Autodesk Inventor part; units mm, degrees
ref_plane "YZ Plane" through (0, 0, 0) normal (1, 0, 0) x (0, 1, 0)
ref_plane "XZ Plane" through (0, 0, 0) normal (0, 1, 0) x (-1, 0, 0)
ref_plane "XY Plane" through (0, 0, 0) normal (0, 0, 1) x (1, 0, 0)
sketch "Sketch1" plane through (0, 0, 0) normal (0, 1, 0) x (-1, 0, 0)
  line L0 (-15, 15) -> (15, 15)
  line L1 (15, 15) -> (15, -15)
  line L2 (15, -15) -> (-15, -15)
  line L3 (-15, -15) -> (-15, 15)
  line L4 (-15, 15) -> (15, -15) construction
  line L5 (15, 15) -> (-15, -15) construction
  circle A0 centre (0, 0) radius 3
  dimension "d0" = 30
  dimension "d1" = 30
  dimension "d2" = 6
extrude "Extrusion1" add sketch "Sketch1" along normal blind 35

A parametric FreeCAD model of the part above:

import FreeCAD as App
import Part
import Sketcher
from FreeCAD import Vector


def add_polygon(sketch, points):
    """Adds a closed chain of lines whose ends are joined by coincident constraints."""
    first, n = sketch.GeometryCount, len(points)
    for a, b in zip(points, points[1:] + points[:1]):
        sketch.addGeometry(Part.LineSegment(App.Vector(*a, 0), App.Vector(*b, 0)), False)
    for i in range(n):
        sketch.addConstraint(Sketcher.Constraint("Coincident", first + i, 2, first + (i + 1) % n, 1))

doc = App.newDocument("Part")
body = doc.addObject("PartDesign::Body", "Body")

# Sketch on XZ plane
sketch1 = body.newObject("Sketcher::SketchObject", "Sketch")
sketch1.AttachmentSupport = (doc.getObject("XZ_Plane"), [""])
sketch1.MapMode = "FlatFace"
add_polygon(sketch1, [(-15, 15), (15, 15), (15, -15), (-15, -15)])  # lines 0-3
sketch1.addGeometry(Part.Circle(Vector(0, 0, 0), Vector(0, 0, 1), 3), False)  # 4
sketch1.addConstraint(Sketcher.Constraint("Horizontal", 0))
sketch1.addConstraint(Sketcher.Constraint("Vertical", 1))
sketch1.addConstraint(Sketcher.Constraint("Horizontal", 2))
sketch1.addConstraint(Sketcher.Constraint("Vertical", 3))
sketch1.addConstraint(Sketcher.Constraint("Coincident", 4, 3, -1, 1))
sketch1.addConstraint(Sketcher.Constraint("Symmetric", 0, 2, 2, 2, -1, 1))
sketch1.addConstraint(Sketcher.Constraint("Equal", 2, 1))
sketch1.addConstraint(Sketcher.Constraint("Diameter", 4, 6.0))
sketch1.addConstraint(Sketcher.Constraint("DistanceX", 0, 1, 0, 2, 30.0))
pad1 = body.newObject("PartDesign::Pad", "Pad")
pad1.Profile = sketch1
pad1.Length = 35
pad1.Reversed = True

doc.recompute()
